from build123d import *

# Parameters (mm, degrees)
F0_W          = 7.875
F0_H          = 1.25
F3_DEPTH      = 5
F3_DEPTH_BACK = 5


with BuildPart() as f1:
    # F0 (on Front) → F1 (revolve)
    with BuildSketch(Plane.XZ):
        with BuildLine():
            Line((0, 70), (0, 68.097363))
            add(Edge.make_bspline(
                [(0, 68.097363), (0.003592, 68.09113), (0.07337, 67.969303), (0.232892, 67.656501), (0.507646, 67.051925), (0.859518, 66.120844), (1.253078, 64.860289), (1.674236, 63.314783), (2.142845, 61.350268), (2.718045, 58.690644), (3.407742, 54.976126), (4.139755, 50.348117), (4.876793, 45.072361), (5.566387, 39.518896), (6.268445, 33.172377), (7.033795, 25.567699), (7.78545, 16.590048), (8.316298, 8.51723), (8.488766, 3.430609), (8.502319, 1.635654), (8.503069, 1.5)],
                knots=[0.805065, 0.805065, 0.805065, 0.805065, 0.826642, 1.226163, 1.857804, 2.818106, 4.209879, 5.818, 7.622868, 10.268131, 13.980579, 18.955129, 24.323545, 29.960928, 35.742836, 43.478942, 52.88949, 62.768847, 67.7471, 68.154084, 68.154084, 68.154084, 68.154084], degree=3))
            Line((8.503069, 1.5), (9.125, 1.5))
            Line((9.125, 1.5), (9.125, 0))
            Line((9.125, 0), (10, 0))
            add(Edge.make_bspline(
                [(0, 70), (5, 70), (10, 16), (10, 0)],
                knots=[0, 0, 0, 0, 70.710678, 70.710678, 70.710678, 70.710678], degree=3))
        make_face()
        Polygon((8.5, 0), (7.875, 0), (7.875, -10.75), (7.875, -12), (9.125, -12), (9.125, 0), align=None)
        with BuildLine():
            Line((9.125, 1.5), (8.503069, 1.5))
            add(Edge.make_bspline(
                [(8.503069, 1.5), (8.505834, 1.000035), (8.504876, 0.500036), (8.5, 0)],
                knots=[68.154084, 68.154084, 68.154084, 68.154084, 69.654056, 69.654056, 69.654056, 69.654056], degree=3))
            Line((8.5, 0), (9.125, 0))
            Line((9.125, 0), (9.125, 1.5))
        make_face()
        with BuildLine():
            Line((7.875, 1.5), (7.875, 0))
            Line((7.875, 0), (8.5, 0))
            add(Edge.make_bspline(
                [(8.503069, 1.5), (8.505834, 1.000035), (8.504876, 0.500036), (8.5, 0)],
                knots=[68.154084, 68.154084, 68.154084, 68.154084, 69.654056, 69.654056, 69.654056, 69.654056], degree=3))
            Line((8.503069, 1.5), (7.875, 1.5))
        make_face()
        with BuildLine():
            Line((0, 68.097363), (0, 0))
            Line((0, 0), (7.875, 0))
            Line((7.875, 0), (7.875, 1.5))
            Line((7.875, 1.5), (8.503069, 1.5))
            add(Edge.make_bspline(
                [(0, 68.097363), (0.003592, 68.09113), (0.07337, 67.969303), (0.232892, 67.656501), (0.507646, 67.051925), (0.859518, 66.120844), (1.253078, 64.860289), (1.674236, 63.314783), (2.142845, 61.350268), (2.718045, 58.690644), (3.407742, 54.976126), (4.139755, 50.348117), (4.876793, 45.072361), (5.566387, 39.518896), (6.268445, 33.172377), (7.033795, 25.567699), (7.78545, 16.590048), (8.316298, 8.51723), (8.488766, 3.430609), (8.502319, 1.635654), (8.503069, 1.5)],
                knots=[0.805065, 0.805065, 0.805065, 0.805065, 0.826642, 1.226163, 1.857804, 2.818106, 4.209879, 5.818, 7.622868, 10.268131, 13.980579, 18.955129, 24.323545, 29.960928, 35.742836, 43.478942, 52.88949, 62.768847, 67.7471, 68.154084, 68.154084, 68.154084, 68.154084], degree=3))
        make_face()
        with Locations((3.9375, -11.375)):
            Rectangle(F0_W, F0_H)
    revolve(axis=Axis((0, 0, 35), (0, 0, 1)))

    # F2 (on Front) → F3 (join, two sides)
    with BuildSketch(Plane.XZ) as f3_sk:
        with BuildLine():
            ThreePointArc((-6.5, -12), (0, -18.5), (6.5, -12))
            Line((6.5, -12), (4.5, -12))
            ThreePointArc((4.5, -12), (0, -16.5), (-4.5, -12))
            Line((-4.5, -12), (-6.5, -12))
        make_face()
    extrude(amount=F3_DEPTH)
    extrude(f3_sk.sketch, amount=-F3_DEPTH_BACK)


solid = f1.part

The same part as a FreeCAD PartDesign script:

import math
import FreeCAD as App
import Part
import Sketcher

doc = App.newDocument("Part")
body = doc.addObject("PartDesign::Body", "Body")

# Sketch on XZ plane
sketch1 = body.newObject("Sketcher::SketchObject", "Sketch")
sketch1.AttachmentSupport = (doc.getObject("XZ_Plane"), [""])
sketch1.MapMode = "FlatFace"
sketch1.addGeometry([
    Part.LineSegment(App.Vector(0, 70, 0), App.Vector(0, 0, 0)),  # 0
    Part.LineSegment(App.Vector(0, 0, 0), App.Vector(7.875, 0, 0)),  # 1
    Part.LineSegment(App.Vector(7.875, 0, 0), App.Vector(7.875, -10.75, 0)),  # 2
    Part.LineSegment(App.Vector(7.875, -10.75, 0), App.Vector(0, -10.75, 0)),  # 3
    Part.LineSegment(App.Vector(0, -10.75, 0), App.Vector(0, -12, 0)),  # 4
    Part.LineSegment(App.Vector(0, -12, 0), App.Vector(9.125, -12, 0)),  # 5
    Part.LineSegment(App.Vector(9.125, -12, 0), App.Vector(9.125, 0, 0)),  # 6
    Part.LineSegment(App.Vector(9.125, 0, 0), App.Vector(10, 0, 0)),  # 7
    Part.BSplineCurve([App.Vector(0, 70, 0), App.Vector(5, 70, 0), App.Vector(10, 16, 0), App.Vector(10, 0, 0)], [4, 4], [0, 70.710678], False, 3, [1, 1, 1, 1], False),  # 8
], False)
sketch1.addConstraint([
    Sketcher.Constraint("Block", 8),
    Sketcher.Constraint("Coincident", 0, 2, 1, 1),
    Sketcher.Constraint("Coincident", 1, 2, 2, 1),
    Sketcher.Constraint("Coincident", 2, 2, 3, 1),
    Sketcher.Constraint("Coincident", 3, 2, 4, 1),
    Sketcher.Constraint("Coincident", 4, 2, 5, 1),
    Sketcher.Constraint("Coincident", 5, 2, 6, 1),
    Sketcher.Constraint("Coincident", 6, 2, 7, 1),
    Sketcher.Constraint("Coincident", 7, 2, 8, 2),
    Sketcher.Constraint("Coincident", 8, 1, 0, 1),
    Sketcher.Constraint("Vertical", 0),
    Sketcher.Constraint("Horizontal", 1),
    Sketcher.Constraint("Vertical", 2),
    Sketcher.Constraint("Horizontal", 3),
    Sketcher.Constraint("Vertical", 4),
    Sketcher.Constraint("Horizontal", 5),
    Sketcher.Constraint("Vertical", 6),
    Sketcher.Constraint("Horizontal", 7),
    Sketcher.Constraint("PointOnObject", 1, 2, -1),
    Sketcher.Constraint("PointOnObject", 3, 2, -2),
    Sketcher.Constraint("DistanceY", 6, 1, 6, 2, 12.0),
    Sketcher.Constraint("DistanceY", 2, 2, 2, 1, 10.75),
    Sketcher.Constraint("DistanceX", 1, 1, 1, 2, 7.875),
    Sketcher.Constraint("DistanceX", 5, 1, 5, 2, 9.125),
])
revolution = body.newObject("PartDesign::Revolution", "Revolution")
revolution.Profile = sketch1
revolution.ReferenceAxis = (sketch1, ["V_Axis"])
revolution.Angle = 360

# Sketch on XZ plane
sketch2 = body.newObject("Sketcher::SketchObject", "Sketch001")
sketch2.AttachmentSupport = (doc.getObject("XZ_Plane"), [""])
sketch2.MapMode = "FlatFace"
sketch2.addGeometry([
    Part.ArcOfCircle(Part.Circle(App.Vector(0, -12, 0), App.Vector(0, 0, 1), 6.5), math.radians(180), math.radians(360)),
    Part.LineSegment(App.Vector(6.5, -12, 0), App.Vector(4.5, -12, 0)),
    Part.ArcOfCircle(Part.Circle(App.Vector(0, -12, 0), App.Vector(0, 0, 1), 4.5), math.radians(180), math.radians(360)),
    Part.LineSegment(App.Vector(-4.5, -12, 0), App.Vector(-6.5, -12, 0)),
], False)
sketch2.addConstraint([
    Sketcher.Constraint("Coincident", 0, 2, 1, 1),
    Sketcher.Constraint("Coincident", 1, 2, 2, 2),
    Sketcher.Constraint("Coincident", 2, 1, 3, 1),
    Sketcher.Constraint("Coincident", 3, 2, 0, 1),
    Sketcher.Constraint("Horizontal", 1),
    Sketcher.Constraint("Horizontal", 3),
    Sketcher.Constraint("Coincident", 2, 3, 0, 3),
    Sketcher.Constraint("Symmetric", 1, 2, 2, 1, -2),
    Sketcher.Constraint("Horizontal", 2, 3, 0, 2),
    Sketcher.Constraint("Radius", 0, 6.5),
    Sketcher.Constraint("Radius", 2, 4.5),
    Sketcher.Constraint("DistanceY", 0, 3, -1, 1, 12.0),
])
pad1 = body.newObject("PartDesign::Pad", "Pad")
pad1.Profile = sketch2
pad1.Type = "TwoLengths"
pad1.Length = 5
pad1.Length2 = 5

doc.recompute()
